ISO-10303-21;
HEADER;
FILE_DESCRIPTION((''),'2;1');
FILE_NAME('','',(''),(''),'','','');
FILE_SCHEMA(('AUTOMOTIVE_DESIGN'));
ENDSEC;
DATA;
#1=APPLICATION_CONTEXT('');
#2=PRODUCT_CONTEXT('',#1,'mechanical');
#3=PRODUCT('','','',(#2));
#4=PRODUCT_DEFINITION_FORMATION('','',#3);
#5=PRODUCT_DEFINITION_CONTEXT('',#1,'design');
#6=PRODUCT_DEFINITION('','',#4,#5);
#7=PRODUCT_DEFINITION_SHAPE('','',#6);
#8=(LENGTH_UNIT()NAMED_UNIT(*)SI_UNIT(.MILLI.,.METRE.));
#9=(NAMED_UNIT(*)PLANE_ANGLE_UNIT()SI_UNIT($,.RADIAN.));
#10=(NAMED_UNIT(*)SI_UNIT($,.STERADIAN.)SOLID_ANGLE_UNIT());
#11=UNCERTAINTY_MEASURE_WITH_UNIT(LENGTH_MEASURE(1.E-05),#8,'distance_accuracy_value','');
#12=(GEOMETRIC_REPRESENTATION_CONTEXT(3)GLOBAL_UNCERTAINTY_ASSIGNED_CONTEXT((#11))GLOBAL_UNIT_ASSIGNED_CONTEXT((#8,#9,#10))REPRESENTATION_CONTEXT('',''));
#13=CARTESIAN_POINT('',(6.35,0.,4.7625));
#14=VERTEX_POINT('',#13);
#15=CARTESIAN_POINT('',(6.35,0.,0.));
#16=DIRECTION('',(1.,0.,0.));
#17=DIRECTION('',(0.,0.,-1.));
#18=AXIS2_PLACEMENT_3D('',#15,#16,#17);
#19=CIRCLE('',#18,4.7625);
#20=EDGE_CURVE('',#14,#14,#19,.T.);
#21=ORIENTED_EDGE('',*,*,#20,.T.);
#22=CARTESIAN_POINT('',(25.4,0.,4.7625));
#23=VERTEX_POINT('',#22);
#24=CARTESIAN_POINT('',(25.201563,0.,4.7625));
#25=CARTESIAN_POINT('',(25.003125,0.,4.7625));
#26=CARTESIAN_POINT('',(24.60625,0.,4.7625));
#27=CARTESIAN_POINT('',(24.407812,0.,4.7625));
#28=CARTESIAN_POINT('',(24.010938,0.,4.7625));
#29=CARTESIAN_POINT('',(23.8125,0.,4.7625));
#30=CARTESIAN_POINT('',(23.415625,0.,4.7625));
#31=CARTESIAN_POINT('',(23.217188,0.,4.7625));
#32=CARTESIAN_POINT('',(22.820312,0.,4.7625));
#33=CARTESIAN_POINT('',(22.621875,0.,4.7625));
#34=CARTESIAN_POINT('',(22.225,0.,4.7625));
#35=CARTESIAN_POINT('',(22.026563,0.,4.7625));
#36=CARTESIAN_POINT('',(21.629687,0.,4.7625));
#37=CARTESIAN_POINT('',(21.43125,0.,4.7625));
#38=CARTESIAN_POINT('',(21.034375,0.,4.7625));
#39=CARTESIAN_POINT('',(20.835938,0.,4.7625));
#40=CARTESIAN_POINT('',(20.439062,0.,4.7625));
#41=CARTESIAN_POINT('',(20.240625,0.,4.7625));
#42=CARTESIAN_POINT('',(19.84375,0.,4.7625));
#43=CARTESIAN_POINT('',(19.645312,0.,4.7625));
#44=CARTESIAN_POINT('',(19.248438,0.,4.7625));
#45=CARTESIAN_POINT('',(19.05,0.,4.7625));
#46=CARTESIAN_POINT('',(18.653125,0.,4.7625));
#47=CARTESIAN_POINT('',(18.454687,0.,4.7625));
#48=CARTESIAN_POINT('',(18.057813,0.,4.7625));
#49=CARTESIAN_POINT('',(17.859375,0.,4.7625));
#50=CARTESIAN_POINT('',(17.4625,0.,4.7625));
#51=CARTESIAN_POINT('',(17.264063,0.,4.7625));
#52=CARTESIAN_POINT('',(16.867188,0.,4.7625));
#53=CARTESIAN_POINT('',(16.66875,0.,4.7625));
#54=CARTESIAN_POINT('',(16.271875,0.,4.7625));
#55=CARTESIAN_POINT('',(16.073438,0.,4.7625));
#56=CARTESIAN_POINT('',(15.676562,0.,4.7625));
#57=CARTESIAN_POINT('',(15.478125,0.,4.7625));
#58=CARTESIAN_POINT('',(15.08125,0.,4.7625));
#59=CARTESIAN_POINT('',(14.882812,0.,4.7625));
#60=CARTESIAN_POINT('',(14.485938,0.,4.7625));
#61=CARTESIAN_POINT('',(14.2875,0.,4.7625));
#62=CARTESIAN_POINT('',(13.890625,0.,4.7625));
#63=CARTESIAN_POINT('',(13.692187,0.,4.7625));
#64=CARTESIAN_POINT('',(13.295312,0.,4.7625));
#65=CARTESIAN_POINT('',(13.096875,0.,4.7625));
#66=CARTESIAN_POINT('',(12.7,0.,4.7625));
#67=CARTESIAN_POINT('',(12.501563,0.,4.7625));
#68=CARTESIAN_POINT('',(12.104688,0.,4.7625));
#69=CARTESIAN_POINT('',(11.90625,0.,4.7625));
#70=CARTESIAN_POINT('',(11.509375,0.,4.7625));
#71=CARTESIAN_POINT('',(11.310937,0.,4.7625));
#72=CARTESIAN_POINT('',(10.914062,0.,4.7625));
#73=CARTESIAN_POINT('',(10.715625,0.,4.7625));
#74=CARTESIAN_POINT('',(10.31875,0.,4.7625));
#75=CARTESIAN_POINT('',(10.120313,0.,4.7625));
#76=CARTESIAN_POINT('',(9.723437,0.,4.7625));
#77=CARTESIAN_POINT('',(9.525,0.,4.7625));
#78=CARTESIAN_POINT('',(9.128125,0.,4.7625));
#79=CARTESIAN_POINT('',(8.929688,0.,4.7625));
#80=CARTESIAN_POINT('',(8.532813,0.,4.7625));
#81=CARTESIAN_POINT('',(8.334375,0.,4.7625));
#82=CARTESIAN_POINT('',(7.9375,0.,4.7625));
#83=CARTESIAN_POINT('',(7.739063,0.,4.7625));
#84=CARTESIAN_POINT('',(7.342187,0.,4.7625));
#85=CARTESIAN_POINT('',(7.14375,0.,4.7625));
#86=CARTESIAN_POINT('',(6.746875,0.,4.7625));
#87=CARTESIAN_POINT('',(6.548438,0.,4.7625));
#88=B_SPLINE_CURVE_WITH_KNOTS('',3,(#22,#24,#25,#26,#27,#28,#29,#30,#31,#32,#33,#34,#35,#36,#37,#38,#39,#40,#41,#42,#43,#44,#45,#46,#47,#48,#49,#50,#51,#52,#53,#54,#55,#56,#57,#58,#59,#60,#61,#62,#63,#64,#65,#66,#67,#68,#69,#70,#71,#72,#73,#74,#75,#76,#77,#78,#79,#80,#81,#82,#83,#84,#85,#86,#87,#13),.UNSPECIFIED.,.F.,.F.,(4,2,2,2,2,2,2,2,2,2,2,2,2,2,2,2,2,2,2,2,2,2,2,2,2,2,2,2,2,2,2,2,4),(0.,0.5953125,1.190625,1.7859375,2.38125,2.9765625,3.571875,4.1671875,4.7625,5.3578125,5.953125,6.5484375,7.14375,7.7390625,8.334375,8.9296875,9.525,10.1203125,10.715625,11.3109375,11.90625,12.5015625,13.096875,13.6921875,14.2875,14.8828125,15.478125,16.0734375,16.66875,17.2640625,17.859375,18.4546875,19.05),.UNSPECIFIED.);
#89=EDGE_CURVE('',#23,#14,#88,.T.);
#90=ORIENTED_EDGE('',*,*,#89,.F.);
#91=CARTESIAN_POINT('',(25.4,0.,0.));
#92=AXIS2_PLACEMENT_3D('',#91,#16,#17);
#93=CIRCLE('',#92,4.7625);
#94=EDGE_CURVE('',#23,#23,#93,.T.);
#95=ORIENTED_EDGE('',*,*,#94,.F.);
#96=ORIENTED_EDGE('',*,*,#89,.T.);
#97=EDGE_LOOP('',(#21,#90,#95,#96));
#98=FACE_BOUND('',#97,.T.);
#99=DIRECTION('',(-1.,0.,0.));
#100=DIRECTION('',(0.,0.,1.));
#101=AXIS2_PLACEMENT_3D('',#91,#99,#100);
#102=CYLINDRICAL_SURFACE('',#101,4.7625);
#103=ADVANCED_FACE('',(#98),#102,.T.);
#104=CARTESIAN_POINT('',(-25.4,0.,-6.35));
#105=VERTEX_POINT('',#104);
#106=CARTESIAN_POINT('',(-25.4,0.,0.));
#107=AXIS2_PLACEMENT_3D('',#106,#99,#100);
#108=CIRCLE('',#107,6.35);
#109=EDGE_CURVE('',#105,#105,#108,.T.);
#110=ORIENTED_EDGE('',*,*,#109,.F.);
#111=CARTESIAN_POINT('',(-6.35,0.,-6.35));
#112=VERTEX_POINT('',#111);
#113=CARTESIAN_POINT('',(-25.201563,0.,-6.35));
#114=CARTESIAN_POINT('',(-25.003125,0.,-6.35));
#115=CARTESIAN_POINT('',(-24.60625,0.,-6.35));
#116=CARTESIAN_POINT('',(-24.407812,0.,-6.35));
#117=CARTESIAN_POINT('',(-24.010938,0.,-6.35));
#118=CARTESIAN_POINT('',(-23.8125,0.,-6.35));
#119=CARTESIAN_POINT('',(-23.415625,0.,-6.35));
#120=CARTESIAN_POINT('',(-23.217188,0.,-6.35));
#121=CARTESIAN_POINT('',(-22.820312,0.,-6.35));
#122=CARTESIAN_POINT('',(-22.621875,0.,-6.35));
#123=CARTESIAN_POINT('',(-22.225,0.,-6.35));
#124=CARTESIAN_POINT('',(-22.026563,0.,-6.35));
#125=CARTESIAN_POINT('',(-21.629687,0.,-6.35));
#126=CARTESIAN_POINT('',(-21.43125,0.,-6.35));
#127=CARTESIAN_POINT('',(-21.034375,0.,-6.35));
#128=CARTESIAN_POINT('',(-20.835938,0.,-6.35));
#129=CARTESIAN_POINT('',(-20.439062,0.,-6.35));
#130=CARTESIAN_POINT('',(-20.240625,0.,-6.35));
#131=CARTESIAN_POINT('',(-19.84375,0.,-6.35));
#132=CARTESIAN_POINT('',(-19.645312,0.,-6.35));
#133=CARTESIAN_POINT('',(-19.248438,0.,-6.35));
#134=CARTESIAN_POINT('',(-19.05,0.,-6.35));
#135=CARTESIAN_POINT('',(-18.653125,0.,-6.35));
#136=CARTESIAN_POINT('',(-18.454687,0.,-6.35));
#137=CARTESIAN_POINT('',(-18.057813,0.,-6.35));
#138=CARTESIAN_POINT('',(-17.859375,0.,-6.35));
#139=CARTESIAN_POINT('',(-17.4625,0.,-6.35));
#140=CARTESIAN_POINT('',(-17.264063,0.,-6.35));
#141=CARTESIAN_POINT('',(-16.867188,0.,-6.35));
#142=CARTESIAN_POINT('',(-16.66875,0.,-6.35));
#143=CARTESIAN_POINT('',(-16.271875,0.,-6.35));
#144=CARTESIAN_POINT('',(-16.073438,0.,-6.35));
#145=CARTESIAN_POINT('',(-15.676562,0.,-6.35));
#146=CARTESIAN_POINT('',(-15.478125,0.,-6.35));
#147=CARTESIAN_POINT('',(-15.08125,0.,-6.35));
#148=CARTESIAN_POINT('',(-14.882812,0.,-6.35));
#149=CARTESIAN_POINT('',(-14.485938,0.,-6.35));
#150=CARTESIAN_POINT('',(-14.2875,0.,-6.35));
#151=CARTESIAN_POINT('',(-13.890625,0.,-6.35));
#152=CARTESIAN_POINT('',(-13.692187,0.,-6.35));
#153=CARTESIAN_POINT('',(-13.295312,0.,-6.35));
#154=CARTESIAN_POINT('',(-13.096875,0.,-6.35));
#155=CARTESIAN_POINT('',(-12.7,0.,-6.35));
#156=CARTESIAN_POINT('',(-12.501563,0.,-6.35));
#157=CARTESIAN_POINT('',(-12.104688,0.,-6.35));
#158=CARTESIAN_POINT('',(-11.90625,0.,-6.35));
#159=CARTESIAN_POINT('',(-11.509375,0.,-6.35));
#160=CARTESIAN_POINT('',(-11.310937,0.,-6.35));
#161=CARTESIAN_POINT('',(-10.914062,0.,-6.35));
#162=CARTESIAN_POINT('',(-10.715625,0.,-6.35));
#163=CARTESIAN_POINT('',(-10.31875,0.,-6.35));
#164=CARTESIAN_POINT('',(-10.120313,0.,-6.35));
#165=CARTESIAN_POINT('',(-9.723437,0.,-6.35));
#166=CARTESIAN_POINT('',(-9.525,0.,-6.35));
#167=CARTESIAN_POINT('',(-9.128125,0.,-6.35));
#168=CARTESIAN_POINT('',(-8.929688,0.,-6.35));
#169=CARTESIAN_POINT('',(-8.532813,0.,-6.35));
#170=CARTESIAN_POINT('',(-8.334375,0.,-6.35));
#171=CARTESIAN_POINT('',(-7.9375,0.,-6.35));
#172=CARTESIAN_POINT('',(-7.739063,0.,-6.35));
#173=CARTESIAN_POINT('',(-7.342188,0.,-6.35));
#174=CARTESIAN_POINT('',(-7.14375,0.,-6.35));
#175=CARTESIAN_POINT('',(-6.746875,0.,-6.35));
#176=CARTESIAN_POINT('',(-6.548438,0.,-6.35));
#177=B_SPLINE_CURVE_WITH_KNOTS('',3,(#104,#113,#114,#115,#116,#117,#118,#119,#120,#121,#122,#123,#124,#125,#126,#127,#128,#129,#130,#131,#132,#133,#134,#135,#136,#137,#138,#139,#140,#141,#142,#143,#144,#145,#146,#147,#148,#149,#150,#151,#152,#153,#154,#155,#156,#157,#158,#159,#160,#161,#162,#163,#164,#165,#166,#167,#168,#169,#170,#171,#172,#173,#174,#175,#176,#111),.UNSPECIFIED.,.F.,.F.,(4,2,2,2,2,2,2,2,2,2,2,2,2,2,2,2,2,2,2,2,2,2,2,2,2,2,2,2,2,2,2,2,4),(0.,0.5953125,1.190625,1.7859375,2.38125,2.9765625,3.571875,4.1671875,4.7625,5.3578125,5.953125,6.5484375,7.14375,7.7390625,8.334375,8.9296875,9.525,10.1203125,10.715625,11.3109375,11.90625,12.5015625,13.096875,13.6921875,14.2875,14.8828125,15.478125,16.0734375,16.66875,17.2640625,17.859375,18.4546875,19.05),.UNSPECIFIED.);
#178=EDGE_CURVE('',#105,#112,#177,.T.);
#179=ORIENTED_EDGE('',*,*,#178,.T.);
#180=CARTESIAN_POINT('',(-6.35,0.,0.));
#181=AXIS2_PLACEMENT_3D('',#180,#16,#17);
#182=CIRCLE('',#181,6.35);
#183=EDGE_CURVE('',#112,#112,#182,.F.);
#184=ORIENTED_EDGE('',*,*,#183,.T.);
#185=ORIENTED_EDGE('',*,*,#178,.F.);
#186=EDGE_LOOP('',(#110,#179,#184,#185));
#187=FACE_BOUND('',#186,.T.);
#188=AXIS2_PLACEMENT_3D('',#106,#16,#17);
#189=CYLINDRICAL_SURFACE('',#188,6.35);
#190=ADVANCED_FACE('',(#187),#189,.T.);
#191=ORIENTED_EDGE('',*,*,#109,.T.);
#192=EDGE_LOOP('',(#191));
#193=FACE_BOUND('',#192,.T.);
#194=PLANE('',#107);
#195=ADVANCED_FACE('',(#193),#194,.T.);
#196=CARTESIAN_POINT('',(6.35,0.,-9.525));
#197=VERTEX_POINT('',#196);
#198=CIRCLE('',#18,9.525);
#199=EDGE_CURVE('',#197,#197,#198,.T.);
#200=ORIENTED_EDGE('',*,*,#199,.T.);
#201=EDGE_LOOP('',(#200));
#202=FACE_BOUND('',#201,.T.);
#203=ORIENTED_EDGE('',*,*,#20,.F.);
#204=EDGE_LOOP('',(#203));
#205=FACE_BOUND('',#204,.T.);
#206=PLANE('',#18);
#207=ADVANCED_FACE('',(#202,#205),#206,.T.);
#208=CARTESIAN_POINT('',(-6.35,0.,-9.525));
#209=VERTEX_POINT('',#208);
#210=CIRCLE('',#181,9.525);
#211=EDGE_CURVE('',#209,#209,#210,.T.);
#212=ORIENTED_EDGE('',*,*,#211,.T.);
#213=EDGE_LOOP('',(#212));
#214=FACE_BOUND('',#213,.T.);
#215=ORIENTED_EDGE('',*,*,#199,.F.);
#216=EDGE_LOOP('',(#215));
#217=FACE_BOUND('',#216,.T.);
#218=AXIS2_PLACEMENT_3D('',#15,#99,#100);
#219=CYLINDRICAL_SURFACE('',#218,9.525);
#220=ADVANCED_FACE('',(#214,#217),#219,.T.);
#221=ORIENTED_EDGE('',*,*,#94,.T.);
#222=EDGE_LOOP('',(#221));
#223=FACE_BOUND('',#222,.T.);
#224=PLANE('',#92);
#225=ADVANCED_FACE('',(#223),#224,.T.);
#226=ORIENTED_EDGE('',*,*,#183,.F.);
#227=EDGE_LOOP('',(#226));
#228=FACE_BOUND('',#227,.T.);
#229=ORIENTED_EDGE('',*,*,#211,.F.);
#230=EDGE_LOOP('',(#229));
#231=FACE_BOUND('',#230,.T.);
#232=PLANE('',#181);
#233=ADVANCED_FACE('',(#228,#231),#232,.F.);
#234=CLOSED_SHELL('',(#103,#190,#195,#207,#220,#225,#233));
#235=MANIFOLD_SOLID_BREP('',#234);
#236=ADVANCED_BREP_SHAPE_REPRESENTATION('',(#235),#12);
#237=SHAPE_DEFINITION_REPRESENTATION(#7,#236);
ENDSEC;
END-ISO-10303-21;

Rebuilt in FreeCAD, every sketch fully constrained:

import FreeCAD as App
import Part
import Sketcher
Q = App.Units.Quantity

doc = App.newDocument("Part")
body = doc.addObject("PartDesign::Body", "Body")

# Sketch on YZ plane
sketch1 = body.newObject("Sketcher::SketchObject", "Sketch")
sketch1.AttachmentSupport = (doc.getObject("YZ_Plane"), [""])
sketch1.MapMode = "FlatFace"
sketch1.addGeometry(Part.Circle(App.Vector(0, 0, 0), App.Vector(0, 0, 1), 9.525), False)
sketch1.addConstraint([
    Sketcher.Constraint("Coincident", 0, 3, -1, 1),
    Sketcher.Constraint("Diameter", 0, Q("0.75 in")),
])
pad1 = body.newObject("PartDesign::Pad", "Pad")
pad1.Profile = sketch1
pad1.Length = Q("0.5 in")
pad1.Midplane = True

# Sketch on YZ plane
sketch2 = body.newObject("Sketcher::SketchObject", "Sketch001")
sketch2.AttachmentSupport = (doc.getObject("YZ_Plane"), [""])
sketch2.MapMode = "FlatFace"
sketch2.AttachmentOffset = App.Placement(App.Vector(0, 0, 0.25 * 25.4), App.Rotation())
sketch2.addGeometry(Part.Circle(App.Vector(0, 0, 0), App.Vector(0, 0, 1), 4.7625), False)
sketch2.addConstraint([
    Sketcher.Constraint("Coincident", 0, 3, -1, 1),
    Sketcher.Constraint("Diameter", 0, Q("0.375 in")),
])
pad2 = body.newObject("PartDesign::Pad", "Pad001")
pad2.Profile = sketch2
pad2.Length = Q("0.75 in")

# Sketch on YZ plane
sketch3 = body.newObject("Sketcher::SketchObject", "Sketch002")
sketch3.AttachmentSupport = (doc.getObject("YZ_Plane"), [""])
sketch3.MapMode = "FlatFace"
sketch3.AttachmentOffset = App.Placement(App.Vector(0, 0, -0.25 * 25.4), App.Rotation())
sketch3.addGeometry(Part.Circle(App.Vector(0, 0, 0), App.Vector(0, 0, 1), 6.35), False)
sketch3.addConstraint([
    Sketcher.Constraint("Coincident", 0, 3, -1, 1),
    Sketcher.Constraint("Diameter", 0, Q("0.5 in")),
])
pad3 = body.newObject("PartDesign::Pad", "Pad002")
pad3.Profile = sketch3
pad3.Length = Q("0.75 in")
pad3.Reversed = True

doc.recompute()
